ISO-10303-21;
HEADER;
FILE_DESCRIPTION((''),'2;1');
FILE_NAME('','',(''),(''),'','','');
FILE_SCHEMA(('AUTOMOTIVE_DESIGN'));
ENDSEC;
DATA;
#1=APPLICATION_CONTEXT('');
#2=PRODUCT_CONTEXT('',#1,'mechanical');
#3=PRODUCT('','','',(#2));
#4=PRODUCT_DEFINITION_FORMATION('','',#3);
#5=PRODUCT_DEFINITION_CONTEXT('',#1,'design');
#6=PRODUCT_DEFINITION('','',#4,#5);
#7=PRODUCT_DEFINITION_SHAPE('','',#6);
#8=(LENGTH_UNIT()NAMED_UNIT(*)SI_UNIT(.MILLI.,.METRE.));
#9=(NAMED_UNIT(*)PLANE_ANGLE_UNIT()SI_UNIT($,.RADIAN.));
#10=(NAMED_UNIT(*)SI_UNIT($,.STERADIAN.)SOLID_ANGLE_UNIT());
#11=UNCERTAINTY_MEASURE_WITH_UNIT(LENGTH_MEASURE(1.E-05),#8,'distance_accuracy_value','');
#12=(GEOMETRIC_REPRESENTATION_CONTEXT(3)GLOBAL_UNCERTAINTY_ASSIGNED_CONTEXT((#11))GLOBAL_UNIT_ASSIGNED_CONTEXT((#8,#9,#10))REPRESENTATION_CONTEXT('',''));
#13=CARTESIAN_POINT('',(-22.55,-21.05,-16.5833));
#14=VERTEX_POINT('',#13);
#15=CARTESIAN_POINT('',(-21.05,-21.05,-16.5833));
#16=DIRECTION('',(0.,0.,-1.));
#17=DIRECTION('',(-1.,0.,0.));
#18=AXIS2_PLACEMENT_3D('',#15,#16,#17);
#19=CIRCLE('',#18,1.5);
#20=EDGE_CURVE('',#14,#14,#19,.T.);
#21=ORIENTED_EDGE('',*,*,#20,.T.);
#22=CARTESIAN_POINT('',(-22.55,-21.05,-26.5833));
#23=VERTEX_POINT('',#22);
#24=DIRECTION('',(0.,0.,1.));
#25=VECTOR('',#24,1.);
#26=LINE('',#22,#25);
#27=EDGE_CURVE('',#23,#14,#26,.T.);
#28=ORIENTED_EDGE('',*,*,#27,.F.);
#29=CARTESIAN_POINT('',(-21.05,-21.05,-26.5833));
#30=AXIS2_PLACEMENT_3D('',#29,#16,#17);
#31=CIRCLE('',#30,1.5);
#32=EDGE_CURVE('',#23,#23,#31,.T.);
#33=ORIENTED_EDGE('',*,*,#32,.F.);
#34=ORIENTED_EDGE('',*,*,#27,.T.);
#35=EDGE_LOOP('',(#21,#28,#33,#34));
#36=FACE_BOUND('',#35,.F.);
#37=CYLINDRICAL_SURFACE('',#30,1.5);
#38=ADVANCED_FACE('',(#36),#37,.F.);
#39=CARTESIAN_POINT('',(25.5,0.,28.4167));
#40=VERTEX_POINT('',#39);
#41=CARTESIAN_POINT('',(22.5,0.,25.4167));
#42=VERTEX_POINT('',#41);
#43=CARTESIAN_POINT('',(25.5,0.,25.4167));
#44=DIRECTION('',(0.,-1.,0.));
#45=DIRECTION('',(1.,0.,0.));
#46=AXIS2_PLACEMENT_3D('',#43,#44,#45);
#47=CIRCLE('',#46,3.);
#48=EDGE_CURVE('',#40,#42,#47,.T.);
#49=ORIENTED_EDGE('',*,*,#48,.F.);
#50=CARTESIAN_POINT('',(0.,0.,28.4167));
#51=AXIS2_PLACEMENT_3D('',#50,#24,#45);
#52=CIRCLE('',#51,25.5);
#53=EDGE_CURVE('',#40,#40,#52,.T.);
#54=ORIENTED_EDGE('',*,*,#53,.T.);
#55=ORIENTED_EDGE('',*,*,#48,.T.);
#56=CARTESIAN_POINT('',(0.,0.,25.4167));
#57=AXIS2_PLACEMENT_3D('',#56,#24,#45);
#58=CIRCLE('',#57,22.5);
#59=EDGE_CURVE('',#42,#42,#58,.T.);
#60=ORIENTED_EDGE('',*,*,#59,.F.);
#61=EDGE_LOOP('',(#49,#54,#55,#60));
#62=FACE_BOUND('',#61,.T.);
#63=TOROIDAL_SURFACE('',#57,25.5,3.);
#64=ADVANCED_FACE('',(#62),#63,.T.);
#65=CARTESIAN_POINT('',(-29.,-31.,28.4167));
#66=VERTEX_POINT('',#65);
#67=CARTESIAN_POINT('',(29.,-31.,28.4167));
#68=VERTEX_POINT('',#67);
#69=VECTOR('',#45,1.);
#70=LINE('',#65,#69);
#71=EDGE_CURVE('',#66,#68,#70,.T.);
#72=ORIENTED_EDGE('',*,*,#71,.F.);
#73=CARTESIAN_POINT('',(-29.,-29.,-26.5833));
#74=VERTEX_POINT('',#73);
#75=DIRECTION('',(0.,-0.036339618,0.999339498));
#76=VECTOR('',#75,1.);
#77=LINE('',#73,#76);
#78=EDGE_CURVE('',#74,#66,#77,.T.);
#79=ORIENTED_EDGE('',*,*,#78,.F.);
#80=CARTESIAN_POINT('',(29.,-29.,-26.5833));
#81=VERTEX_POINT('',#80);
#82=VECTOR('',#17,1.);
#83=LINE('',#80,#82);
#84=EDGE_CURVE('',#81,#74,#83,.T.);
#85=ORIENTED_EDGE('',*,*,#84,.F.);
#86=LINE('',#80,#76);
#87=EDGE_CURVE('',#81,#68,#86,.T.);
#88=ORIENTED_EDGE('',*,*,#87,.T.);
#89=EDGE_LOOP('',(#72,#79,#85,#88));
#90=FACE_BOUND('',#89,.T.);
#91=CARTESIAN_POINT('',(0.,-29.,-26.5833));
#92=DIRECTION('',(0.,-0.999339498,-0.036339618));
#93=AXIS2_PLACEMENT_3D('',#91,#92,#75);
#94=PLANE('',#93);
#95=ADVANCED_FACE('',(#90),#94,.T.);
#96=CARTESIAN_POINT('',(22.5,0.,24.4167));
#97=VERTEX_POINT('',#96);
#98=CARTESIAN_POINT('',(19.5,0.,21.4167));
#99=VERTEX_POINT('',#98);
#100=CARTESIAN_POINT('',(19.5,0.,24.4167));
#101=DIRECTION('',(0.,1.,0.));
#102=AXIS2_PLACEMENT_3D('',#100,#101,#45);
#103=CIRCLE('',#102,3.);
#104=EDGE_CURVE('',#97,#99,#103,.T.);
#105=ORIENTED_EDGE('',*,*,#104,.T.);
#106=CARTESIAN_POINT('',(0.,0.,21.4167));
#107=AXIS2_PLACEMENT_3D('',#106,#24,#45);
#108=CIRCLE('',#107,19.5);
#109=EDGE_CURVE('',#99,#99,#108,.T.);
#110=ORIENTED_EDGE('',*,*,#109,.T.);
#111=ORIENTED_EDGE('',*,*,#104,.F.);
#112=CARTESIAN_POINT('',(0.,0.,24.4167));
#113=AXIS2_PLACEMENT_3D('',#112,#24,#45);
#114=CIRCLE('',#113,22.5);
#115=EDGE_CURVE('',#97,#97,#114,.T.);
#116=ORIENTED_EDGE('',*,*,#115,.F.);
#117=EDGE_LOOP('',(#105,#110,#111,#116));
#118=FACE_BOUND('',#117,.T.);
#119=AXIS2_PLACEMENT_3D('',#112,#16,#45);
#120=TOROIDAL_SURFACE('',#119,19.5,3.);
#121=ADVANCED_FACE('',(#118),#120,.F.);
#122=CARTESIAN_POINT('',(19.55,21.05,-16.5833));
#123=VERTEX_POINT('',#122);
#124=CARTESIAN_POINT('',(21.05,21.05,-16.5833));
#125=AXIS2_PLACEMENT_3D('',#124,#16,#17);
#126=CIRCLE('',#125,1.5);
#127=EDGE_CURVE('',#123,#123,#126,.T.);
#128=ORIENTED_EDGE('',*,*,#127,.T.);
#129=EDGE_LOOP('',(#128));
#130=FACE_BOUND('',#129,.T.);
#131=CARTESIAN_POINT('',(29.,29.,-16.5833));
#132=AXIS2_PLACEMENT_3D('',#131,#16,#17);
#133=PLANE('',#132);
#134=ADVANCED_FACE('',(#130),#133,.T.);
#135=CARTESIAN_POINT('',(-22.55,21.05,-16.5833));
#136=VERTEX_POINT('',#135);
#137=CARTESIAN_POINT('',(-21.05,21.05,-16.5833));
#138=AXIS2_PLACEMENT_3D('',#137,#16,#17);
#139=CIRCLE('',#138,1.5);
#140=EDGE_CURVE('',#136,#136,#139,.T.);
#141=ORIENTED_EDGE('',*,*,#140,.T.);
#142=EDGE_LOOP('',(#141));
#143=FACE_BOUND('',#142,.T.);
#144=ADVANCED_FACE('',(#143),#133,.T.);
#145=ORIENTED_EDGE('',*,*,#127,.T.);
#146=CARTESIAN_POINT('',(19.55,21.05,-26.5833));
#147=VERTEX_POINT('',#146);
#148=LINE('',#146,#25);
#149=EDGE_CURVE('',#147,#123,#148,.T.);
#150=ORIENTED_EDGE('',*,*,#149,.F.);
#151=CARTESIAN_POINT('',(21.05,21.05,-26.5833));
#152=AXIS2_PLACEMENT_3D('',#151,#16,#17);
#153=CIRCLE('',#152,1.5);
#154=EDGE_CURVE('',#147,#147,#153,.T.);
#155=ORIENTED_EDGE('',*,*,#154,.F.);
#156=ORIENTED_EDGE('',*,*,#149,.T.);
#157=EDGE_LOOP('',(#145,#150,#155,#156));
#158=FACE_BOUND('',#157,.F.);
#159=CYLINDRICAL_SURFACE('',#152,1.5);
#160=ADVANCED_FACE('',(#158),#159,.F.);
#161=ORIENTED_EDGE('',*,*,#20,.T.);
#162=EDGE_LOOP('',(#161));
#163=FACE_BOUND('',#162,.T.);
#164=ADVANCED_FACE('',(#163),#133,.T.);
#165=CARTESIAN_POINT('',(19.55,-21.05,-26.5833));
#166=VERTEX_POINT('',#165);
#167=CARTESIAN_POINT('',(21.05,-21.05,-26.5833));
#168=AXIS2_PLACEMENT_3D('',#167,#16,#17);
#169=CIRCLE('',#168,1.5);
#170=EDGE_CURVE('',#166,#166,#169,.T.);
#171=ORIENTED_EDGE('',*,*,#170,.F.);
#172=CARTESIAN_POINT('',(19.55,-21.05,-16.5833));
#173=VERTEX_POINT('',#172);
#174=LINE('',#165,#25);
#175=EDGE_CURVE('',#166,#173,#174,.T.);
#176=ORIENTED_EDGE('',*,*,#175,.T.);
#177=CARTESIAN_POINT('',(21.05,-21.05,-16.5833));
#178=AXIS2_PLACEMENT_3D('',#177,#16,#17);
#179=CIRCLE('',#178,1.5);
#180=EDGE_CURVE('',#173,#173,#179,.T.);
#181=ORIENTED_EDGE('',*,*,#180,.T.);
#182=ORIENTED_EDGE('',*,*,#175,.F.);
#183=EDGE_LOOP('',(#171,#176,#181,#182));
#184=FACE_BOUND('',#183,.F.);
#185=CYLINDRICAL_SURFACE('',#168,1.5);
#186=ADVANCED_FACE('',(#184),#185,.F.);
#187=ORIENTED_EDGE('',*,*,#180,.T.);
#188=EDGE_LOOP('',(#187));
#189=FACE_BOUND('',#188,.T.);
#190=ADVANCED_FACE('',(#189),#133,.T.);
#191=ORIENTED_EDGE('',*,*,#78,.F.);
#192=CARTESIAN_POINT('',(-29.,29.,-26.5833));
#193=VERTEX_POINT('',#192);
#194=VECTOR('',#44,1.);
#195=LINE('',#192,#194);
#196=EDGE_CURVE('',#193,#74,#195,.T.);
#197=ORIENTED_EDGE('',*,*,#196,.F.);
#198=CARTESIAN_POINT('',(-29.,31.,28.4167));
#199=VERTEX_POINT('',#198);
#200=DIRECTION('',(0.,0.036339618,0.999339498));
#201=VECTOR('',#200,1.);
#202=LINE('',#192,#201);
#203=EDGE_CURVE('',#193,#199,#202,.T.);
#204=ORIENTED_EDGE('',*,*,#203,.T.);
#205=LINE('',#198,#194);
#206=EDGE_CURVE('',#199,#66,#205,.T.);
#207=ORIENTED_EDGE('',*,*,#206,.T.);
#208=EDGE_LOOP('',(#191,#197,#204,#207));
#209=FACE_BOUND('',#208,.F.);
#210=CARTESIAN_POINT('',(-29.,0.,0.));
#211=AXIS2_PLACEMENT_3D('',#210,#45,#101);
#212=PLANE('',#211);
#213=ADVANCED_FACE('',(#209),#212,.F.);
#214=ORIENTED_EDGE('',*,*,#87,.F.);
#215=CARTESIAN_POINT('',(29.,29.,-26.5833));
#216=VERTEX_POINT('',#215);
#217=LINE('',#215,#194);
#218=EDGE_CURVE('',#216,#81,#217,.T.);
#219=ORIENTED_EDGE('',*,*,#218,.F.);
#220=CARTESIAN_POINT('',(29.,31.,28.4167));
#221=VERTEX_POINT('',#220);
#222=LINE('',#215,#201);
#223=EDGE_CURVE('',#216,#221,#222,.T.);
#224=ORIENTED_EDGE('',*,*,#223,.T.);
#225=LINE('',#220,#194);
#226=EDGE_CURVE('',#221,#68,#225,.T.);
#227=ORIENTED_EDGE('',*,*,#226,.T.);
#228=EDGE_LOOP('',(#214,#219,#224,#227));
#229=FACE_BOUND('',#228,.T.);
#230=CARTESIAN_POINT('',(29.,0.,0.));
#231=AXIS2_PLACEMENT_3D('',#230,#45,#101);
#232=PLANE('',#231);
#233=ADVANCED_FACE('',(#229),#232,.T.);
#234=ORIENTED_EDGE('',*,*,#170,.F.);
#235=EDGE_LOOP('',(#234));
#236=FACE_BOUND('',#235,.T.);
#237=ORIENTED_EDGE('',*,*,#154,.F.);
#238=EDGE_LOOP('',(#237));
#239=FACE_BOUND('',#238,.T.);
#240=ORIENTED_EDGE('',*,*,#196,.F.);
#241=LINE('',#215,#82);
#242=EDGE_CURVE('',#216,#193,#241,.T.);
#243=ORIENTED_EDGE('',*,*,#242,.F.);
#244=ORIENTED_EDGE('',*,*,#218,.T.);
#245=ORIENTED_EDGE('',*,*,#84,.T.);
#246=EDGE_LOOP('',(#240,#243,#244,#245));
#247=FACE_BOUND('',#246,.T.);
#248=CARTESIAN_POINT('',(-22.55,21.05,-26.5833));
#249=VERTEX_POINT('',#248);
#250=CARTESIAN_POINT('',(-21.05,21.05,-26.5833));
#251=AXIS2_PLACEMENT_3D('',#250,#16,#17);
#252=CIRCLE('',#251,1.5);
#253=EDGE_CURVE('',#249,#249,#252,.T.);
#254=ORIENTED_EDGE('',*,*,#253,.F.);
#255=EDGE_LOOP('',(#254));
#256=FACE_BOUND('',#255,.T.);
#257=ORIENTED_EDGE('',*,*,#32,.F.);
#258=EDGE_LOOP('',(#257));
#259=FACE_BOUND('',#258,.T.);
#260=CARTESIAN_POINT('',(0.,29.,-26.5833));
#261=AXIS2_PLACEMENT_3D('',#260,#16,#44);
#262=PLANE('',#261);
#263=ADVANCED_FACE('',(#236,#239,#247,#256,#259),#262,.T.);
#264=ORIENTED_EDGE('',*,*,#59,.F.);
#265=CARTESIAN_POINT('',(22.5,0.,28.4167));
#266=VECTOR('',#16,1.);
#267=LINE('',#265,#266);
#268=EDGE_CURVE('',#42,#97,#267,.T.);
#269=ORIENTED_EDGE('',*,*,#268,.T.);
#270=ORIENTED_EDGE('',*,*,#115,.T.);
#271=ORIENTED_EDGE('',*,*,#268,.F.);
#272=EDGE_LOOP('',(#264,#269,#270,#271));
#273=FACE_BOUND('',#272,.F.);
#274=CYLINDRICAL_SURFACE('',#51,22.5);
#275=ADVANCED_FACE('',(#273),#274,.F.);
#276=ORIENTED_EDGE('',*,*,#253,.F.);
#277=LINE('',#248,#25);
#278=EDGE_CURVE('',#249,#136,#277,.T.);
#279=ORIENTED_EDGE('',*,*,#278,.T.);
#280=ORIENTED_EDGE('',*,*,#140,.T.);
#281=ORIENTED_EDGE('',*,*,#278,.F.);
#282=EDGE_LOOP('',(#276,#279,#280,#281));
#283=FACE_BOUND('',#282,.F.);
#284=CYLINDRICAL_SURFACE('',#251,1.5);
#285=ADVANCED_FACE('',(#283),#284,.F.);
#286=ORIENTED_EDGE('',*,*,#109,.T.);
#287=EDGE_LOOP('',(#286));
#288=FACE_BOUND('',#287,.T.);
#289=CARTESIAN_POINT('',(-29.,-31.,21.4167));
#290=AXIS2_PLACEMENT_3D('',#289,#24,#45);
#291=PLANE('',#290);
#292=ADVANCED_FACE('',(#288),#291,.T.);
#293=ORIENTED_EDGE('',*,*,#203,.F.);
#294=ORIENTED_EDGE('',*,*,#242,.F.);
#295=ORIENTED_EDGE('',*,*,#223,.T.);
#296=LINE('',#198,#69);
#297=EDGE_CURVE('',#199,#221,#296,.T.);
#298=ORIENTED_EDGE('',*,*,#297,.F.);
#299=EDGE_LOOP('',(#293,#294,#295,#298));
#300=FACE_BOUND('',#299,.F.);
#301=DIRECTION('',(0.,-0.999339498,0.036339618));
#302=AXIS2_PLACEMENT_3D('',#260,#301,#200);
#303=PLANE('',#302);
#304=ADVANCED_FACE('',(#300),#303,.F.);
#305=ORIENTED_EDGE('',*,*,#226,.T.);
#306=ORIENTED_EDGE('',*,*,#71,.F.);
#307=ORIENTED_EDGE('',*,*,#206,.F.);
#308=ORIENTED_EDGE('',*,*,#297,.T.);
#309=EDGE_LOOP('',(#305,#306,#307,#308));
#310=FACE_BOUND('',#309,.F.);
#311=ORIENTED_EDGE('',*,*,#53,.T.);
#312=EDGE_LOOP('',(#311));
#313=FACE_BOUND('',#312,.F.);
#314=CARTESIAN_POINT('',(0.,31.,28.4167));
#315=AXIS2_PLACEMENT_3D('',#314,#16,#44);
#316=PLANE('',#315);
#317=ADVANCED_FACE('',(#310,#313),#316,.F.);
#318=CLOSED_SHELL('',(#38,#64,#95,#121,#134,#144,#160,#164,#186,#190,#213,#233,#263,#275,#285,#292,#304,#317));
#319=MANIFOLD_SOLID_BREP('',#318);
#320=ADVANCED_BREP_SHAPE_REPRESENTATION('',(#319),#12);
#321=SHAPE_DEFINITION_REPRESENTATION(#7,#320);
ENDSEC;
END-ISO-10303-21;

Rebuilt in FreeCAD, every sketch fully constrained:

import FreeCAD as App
import Part
import Sketcher
Q = App.Units.Quantity


def edges_at(feature, points):
    """Names of the edges that pass closest to the given points."""
    edges = feature.Shape.Edges
    near = lambda p: min(range(len(edges)), key=lambda i: edges[i].distToShape(Part.Vertex(*p))[0])
    return sorted({f"Edge{near(p) + 1}" for p in points})

doc = App.newDocument("Part")
body = doc.addObject("PartDesign::Body", "Body")

sketch1 = body.newObject("Sketcher::SketchObject", "Sketch")
sketch1.AttachmentSupport = (doc.getObject("YZ_Plane"), [""])
sketch1.MapMode = "FlatFace"
sketch1.addGeometry([
    Part.LineSegment(App.Vector(29, -27, 0), App.Vector(31, 28, 0)),
    Part.LineSegment(App.Vector(31, 28, 0), App.Vector(-31, 28, 0)),
    Part.LineSegment(App.Vector(-31, 28, 0), App.Vector(-29, -27, 0)),
    Part.LineSegment(App.Vector(-29, -27, 0), App.Vector(29, -27, 0)),
], False)
sketch1.addConstraint([
    Sketcher.Constraint("Coincident", 0, 2, 1, 1),
    Sketcher.Constraint("Coincident", 1, 2, 2, 1),
    Sketcher.Constraint("Coincident", 2, 2, 3, 1),
    Sketcher.Constraint("Coincident", 3, 2, 0, 1),
    Sketcher.Constraint("Horizontal", 1),
    Sketcher.Constraint("Horizontal", 3),
    Sketcher.Constraint("Equal", 0, 2),
    Sketcher.Constraint("DistanceX", 1, 2, 1, 1, Q("62 mm")),
    Sketcher.Constraint("DistanceX", 3, 1, 3, 2, Q("58 mm")),
    Sketcher.Constraint("DistanceY", 2, 2, 1, 2, Q("55 mm")),
    Sketcher.Constraint("DistanceX", -1, 1, 0, 2, Q("31 mm")),
    Sketcher.Constraint("DistanceY", -1, 1, 0, 2, Q("28.4167 mm")),
])
pad1 = body.newObject("PartDesign::Pad", "Pad")
pad1.Profile = sketch1
pad1.Length = 58
pad1.Midplane = True

sketch2 = body.newObject("Sketcher::SketchObject", "Sketch001")
sketch2.AttachmentSupport = (doc.getObject("XY_Plane"), [""])
sketch2.MapMode = "FlatFace"
sketch2.AttachmentOffset = App.Placement(App.Vector(0, 0, 28.4167), App.Rotation())
sketch2.addGeometry(Part.Circle(App.Vector(0, 0, 0), App.Vector(0, 0, 1), 22), False)
sketch2.addConstraint([
    Sketcher.Constraint("Coincident", 0, 3, -1, 1),
    Sketcher.Constraint("Diameter", 0, Q("45 mm")),
])
pocket1 = body.newObject("PartDesign::Pocket", "Pocket")
pocket1.Profile = sketch2
pocket1.Length = 7
doc.recompute()

fillet = body.newObject("PartDesign::Fillet", "Fillet")
fillet.Base = (pocket1, edges_at(pocket1, [(-22.5, 0, 21.417), (-22.5, 0, 28.417)]))
fillet.Radius = 3

sketch3 = body.newObject("Sketcher::SketchObject", "Sketch002")
sketch3.AttachmentSupport = (doc.getObject("XY_Plane"), [""])
sketch3.MapMode = "FlatFace"
sketch3.AttachmentOffset = App.Placement(App.Vector(0, 0, -26.5833), App.Rotation())
sketch3.addGeometry([
    Part.Circle(App.Vector(21.1, 21.1, 0), App.Vector(0, 0, 1), 1.5),
    Part.Circle(App.Vector(21.1, -21.1, 0), App.Vector(0, 0, 1), 1.5),
    Part.Circle(App.Vector(-21.1, -21.1, 0), App.Vector(0, 0, 1), 1.5),
    Part.Circle(App.Vector(-21.1, 21.1, 0), App.Vector(0, 0, 1), 1.5),
], False)
sketch3.addConstraint([
    Sketcher.Constraint("Equal", 0, 1),
    Sketcher.Constraint("Equal", 1, 2),
    Sketcher.Constraint("Equal", 2, 3),
    Sketcher.Constraint("Symmetric", 0, 3, 2, 3, -1, 1),
    Sketcher.Constraint("Symmetric", 1, 3, 3, 3, -1, 1),
    Sketcher.Constraint("Symmetric", 1, 3, 2, 3, -2),
    Sketcher.Constraint("Diameter", 0, Q("3 mm")),
    Sketcher.Constraint("DistanceY", 1, 3, 0, 3, Q("42.1 mm")),
    Sketcher.Constraint("DistanceX", 2, 3, 1, 3, Q("42.1 mm")),
])
pocket2 = body.newObject("PartDesign::Pocket", "Pocket001")
pocket2.Profile = sketch3
pocket2.Length = 10
pocket2.Reversed = True

doc.recompute()
